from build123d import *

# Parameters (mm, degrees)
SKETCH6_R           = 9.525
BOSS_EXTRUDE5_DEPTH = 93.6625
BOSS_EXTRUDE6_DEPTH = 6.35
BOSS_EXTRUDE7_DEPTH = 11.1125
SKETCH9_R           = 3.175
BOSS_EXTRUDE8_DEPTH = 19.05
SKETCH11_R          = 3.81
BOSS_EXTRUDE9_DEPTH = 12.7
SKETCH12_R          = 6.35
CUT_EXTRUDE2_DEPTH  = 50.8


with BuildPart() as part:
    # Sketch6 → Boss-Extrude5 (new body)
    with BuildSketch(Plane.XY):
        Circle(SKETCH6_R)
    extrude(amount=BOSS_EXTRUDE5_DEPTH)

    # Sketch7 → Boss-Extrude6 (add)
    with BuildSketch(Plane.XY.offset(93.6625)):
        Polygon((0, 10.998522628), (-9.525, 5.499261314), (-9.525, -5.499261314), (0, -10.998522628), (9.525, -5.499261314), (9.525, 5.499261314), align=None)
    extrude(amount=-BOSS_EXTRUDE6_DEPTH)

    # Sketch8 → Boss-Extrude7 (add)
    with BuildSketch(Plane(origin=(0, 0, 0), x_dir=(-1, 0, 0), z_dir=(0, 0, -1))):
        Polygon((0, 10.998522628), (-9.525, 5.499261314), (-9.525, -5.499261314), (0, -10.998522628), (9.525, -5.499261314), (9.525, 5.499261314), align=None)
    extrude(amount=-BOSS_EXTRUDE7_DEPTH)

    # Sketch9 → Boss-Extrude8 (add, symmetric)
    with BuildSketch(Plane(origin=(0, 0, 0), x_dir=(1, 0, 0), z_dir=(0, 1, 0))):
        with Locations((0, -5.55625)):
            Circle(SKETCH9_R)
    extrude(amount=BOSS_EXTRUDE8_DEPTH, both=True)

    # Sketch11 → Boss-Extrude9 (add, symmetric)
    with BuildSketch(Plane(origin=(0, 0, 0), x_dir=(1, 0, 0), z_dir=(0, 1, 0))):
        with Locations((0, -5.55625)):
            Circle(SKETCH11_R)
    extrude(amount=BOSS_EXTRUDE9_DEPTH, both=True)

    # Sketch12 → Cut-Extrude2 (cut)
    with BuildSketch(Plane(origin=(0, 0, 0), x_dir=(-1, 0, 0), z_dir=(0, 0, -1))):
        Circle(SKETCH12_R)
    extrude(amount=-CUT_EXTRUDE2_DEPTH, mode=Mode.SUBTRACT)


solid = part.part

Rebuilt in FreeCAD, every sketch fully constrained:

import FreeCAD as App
import Part
import Sketcher
from FreeCAD import Vector
Q = App.Units.Quantity

doc = App.newDocument("Part")
body = doc.addObject("PartDesign::Body", "Body")

sketch1 = doc.addObject("Sketcher::SketchObject", "Sketch")
body.addObject(sketch1)
sketch1.AttachmentSupport = (doc.XY_Plane, [""])
sketch1.MapMode = "FlatFace"
sketch1.addGeometry(Part.Circle(Vector(0, 0, 0), Vector(0, 0, 1), 9.525), False)
sketch1.addConstraint([
    Sketcher.Constraint("Coincident", 0, 3, -1, 1),
    Sketcher.Constraint("Diameter", 0, Q("0.75 in")),
])
pad1 = doc.addObject("PartDesign::Pad", "Pad")
body.addObject(pad1)
pad1.Profile = sketch1
pad1.Length = Q("3.6875 in")

sketch2 = doc.addObject("Sketcher::SketchObject", "Sketch001")
body.addObject(sketch2)
sketch2.AttachmentSupport = (doc.XY_Plane, [""])
sketch2.MapMode = "FlatFace"
sketch2.AttachmentOffset = App.Placement(Vector(0, 0, 3.6875 * 25.4), App.Rotation())
sketch2.addGeometry([
    Part.LineSegment(Vector(0, 10.998523, 0), Vector(-9.525, 5.499261, 0)),
    Part.LineSegment(Vector(-9.525, 5.499261, 0), Vector(-9.525, -5.499261, 0)),
    Part.LineSegment(Vector(-9.525, -5.499261, 0), Vector(0, -10.998523, 0)),
    Part.LineSegment(Vector(0, -10.998523, 0), Vector(9.525, -5.499261, 0)),
    Part.LineSegment(Vector(9.525, -5.499261, 0), Vector(9.525, 5.499261, 0)),
    Part.LineSegment(Vector(9.525, 5.499261, 0), Vector(0, 10.998523, 0)),
], False)
sketch2.addConstraint([
    Sketcher.Constraint("Coincident", 0, 2, 1, 1),
    Sketcher.Constraint("Coincident", 1, 2, 2, 1),
    Sketcher.Constraint("Coincident", 2, 2, 3, 1),
    Sketcher.Constraint("Coincident", 3, 2, 4, 1),
    Sketcher.Constraint("Coincident", 4, 2, 5, 1),
    Sketcher.Constraint("Coincident", 5, 2, 0, 1),
    Sketcher.Constraint("Vertical", 1),
    Sketcher.Constraint("Vertical", 4),
    Sketcher.Constraint("Symmetric", 0, 2, 3, 2, -1, 1),
    Sketcher.Constraint("Symmetric", 2, 2, 5, 2, -1, 1),
    Sketcher.Constraint("PointOnObject", 2, 2, -2),
    Sketcher.Constraint("Parallel", 2, 5),
    Sketcher.Constraint("Horizontal", 1, 2, 3, 2),
    Sketcher.Constraint("Angle", 0, Q("-150 deg")),
    Sketcher.Constraint("DistanceX", 1, 2, 3, 2, Q("0.75 in")),
    Sketcher.Constraint("DistanceY", 1, 2, 1, 1, Q("10.998523 mm")),
])
pad2 = doc.addObject("PartDesign::Pad", "Pad001")
body.addObject(pad2)
pad2.Profile = sketch2
pad2.Length = Q("0.25 in")
pad2.Reversed = True

sketch3 = doc.addObject("Sketcher::SketchObject", "Sketch002")
body.addObject(sketch3)
sketch3.AttachmentSupport = (doc.XY_Plane, [""])
sketch3.MapMode = "FlatFace"
sketch3.addGeometry([
    Part.LineSegment(Vector(0, 10.998523, 0), Vector(9.525, 5.499261, 0)),
    Part.LineSegment(Vector(9.525, 5.499261, 0), Vector(9.525, -5.499261, 0)),
    Part.LineSegment(Vector(9.525, -5.499261, 0), Vector(0, -10.998523, 0)),
    Part.LineSegment(Vector(0, -10.998523, 0), Vector(-9.525, -5.499261, 0)),
    Part.LineSegment(Vector(-9.525, -5.499261, 0), Vector(-9.525, 5.499261, 0)),
    Part.LineSegment(Vector(-9.525, 5.499261, 0), Vector(0, 10.998523, 0)),
], False)
sketch3.addConstraint([
    Sketcher.Constraint("Coincident", 0, 2, 1, 1),
    Sketcher.Constraint("Coincident", 1, 2, 2, 1),
    Sketcher.Constraint("Coincident", 2, 2, 3, 1),
    Sketcher.Constraint("Coincident", 3, 2, 4, 1),
    Sketcher.Constraint("Coincident", 4, 2, 5, 1),
    Sketcher.Constraint("Coincident", 5, 2, 0, 1),
    Sketcher.Constraint("Vertical", 1),
    Sketcher.Constraint("Vertical", 4),
    Sketcher.Constraint("Symmetric", 0, 2, 3, 2, -1, 1),
    Sketcher.Constraint("Symmetric", 2, 2, 5, 2, -1, 1),
    Sketcher.Constraint("PointOnObject", 2, 2, -2),
    Sketcher.Constraint("Parallel", 2, 5),
    Sketcher.Constraint("Horizontal", 1, 2, 3, 2),
    Sketcher.Constraint("Angle", 0, Q("-30 deg")),
    Sketcher.Constraint("DistanceX", 3, 2, 1, 2, Q("0.75 in")),
    Sketcher.Constraint("DistanceY", 1, 2, 1, 1, Q("10.998523 mm")),
])
pad3 = doc.addObject("PartDesign::Pad", "Pad002")
body.addObject(pad3)
pad3.Profile = sketch3
pad3.Length = Q("0.4375 in")

sketch4 = doc.addObject("Sketcher::SketchObject", "Sketch003")
body.addObject(sketch4)
sketch4.AttachmentSupport = (doc.XZ_Plane, [""])
sketch4.MapMode = "FlatFace"
sketch4.addGeometry(Part.Circle(Vector(0, 5.55625, 0), Vector(0, 0, 1), 3.175), False)
sketch4.addConstraint([
    Sketcher.Constraint("PointOnObject", 0, 3, -2),
    Sketcher.Constraint("Diameter", 0, Q("0.25 in")),
    Sketcher.Constraint("DistanceY", -1, 1, 0, 3, Q("0.21875 in")),
])
pad4 = doc.addObject("PartDesign::Pad", "Pad003")
body.addObject(pad4)
pad4.Profile = sketch4
pad4.Length = Q("1.5 in")
pad4.Midplane = True

sketch5 = doc.addObject("Sketcher::SketchObject", "Sketch004")
body.addObject(sketch5)
sketch5.AttachmentSupport = (doc.XZ_Plane, [""])
sketch5.MapMode = "FlatFace"
sketch5.addGeometry(Part.Circle(Vector(0, 5.55625, 0), Vector(0, 0, 1), 3.81), False)
sketch5.addConstraint([
    Sketcher.Constraint("PointOnObject", 0, 3, -2),
    Sketcher.Constraint("Diameter", 0, Q("0.3 in")),
    Sketcher.Constraint("DistanceY", -1, 1, 0, 3, Q("0.21875 in")),
])
pad5 = doc.addObject("PartDesign::Pad", "Pad004")
body.addObject(pad5)
pad5.Profile = sketch5
pad5.Length = Q("1 in")
pad5.Midplane = True

sketch6 = doc.addObject("Sketcher::SketchObject", "Sketch005")
body.addObject(sketch6)
sketch6.AttachmentSupport = (doc.XY_Plane, [""])
sketch6.MapMode = "FlatFace"
sketch6.addGeometry(Part.Circle(Vector(0, 0, 0), Vector(0, 0, 1), 6.35), False)
sketch6.addConstraint([
    Sketcher.Constraint("Coincident", 0, 3, -1, 1),
    Sketcher.Constraint("Diameter", 0, Q("0.5 in")),
])
pocket1 = doc.addObject("PartDesign::Pocket", "Pocket")
body.addObject(pocket1)
pocket1.Profile = sketch6
pocket1.Length = Q("2 in")
pocket1.Reversed = True

doc.recompute()
